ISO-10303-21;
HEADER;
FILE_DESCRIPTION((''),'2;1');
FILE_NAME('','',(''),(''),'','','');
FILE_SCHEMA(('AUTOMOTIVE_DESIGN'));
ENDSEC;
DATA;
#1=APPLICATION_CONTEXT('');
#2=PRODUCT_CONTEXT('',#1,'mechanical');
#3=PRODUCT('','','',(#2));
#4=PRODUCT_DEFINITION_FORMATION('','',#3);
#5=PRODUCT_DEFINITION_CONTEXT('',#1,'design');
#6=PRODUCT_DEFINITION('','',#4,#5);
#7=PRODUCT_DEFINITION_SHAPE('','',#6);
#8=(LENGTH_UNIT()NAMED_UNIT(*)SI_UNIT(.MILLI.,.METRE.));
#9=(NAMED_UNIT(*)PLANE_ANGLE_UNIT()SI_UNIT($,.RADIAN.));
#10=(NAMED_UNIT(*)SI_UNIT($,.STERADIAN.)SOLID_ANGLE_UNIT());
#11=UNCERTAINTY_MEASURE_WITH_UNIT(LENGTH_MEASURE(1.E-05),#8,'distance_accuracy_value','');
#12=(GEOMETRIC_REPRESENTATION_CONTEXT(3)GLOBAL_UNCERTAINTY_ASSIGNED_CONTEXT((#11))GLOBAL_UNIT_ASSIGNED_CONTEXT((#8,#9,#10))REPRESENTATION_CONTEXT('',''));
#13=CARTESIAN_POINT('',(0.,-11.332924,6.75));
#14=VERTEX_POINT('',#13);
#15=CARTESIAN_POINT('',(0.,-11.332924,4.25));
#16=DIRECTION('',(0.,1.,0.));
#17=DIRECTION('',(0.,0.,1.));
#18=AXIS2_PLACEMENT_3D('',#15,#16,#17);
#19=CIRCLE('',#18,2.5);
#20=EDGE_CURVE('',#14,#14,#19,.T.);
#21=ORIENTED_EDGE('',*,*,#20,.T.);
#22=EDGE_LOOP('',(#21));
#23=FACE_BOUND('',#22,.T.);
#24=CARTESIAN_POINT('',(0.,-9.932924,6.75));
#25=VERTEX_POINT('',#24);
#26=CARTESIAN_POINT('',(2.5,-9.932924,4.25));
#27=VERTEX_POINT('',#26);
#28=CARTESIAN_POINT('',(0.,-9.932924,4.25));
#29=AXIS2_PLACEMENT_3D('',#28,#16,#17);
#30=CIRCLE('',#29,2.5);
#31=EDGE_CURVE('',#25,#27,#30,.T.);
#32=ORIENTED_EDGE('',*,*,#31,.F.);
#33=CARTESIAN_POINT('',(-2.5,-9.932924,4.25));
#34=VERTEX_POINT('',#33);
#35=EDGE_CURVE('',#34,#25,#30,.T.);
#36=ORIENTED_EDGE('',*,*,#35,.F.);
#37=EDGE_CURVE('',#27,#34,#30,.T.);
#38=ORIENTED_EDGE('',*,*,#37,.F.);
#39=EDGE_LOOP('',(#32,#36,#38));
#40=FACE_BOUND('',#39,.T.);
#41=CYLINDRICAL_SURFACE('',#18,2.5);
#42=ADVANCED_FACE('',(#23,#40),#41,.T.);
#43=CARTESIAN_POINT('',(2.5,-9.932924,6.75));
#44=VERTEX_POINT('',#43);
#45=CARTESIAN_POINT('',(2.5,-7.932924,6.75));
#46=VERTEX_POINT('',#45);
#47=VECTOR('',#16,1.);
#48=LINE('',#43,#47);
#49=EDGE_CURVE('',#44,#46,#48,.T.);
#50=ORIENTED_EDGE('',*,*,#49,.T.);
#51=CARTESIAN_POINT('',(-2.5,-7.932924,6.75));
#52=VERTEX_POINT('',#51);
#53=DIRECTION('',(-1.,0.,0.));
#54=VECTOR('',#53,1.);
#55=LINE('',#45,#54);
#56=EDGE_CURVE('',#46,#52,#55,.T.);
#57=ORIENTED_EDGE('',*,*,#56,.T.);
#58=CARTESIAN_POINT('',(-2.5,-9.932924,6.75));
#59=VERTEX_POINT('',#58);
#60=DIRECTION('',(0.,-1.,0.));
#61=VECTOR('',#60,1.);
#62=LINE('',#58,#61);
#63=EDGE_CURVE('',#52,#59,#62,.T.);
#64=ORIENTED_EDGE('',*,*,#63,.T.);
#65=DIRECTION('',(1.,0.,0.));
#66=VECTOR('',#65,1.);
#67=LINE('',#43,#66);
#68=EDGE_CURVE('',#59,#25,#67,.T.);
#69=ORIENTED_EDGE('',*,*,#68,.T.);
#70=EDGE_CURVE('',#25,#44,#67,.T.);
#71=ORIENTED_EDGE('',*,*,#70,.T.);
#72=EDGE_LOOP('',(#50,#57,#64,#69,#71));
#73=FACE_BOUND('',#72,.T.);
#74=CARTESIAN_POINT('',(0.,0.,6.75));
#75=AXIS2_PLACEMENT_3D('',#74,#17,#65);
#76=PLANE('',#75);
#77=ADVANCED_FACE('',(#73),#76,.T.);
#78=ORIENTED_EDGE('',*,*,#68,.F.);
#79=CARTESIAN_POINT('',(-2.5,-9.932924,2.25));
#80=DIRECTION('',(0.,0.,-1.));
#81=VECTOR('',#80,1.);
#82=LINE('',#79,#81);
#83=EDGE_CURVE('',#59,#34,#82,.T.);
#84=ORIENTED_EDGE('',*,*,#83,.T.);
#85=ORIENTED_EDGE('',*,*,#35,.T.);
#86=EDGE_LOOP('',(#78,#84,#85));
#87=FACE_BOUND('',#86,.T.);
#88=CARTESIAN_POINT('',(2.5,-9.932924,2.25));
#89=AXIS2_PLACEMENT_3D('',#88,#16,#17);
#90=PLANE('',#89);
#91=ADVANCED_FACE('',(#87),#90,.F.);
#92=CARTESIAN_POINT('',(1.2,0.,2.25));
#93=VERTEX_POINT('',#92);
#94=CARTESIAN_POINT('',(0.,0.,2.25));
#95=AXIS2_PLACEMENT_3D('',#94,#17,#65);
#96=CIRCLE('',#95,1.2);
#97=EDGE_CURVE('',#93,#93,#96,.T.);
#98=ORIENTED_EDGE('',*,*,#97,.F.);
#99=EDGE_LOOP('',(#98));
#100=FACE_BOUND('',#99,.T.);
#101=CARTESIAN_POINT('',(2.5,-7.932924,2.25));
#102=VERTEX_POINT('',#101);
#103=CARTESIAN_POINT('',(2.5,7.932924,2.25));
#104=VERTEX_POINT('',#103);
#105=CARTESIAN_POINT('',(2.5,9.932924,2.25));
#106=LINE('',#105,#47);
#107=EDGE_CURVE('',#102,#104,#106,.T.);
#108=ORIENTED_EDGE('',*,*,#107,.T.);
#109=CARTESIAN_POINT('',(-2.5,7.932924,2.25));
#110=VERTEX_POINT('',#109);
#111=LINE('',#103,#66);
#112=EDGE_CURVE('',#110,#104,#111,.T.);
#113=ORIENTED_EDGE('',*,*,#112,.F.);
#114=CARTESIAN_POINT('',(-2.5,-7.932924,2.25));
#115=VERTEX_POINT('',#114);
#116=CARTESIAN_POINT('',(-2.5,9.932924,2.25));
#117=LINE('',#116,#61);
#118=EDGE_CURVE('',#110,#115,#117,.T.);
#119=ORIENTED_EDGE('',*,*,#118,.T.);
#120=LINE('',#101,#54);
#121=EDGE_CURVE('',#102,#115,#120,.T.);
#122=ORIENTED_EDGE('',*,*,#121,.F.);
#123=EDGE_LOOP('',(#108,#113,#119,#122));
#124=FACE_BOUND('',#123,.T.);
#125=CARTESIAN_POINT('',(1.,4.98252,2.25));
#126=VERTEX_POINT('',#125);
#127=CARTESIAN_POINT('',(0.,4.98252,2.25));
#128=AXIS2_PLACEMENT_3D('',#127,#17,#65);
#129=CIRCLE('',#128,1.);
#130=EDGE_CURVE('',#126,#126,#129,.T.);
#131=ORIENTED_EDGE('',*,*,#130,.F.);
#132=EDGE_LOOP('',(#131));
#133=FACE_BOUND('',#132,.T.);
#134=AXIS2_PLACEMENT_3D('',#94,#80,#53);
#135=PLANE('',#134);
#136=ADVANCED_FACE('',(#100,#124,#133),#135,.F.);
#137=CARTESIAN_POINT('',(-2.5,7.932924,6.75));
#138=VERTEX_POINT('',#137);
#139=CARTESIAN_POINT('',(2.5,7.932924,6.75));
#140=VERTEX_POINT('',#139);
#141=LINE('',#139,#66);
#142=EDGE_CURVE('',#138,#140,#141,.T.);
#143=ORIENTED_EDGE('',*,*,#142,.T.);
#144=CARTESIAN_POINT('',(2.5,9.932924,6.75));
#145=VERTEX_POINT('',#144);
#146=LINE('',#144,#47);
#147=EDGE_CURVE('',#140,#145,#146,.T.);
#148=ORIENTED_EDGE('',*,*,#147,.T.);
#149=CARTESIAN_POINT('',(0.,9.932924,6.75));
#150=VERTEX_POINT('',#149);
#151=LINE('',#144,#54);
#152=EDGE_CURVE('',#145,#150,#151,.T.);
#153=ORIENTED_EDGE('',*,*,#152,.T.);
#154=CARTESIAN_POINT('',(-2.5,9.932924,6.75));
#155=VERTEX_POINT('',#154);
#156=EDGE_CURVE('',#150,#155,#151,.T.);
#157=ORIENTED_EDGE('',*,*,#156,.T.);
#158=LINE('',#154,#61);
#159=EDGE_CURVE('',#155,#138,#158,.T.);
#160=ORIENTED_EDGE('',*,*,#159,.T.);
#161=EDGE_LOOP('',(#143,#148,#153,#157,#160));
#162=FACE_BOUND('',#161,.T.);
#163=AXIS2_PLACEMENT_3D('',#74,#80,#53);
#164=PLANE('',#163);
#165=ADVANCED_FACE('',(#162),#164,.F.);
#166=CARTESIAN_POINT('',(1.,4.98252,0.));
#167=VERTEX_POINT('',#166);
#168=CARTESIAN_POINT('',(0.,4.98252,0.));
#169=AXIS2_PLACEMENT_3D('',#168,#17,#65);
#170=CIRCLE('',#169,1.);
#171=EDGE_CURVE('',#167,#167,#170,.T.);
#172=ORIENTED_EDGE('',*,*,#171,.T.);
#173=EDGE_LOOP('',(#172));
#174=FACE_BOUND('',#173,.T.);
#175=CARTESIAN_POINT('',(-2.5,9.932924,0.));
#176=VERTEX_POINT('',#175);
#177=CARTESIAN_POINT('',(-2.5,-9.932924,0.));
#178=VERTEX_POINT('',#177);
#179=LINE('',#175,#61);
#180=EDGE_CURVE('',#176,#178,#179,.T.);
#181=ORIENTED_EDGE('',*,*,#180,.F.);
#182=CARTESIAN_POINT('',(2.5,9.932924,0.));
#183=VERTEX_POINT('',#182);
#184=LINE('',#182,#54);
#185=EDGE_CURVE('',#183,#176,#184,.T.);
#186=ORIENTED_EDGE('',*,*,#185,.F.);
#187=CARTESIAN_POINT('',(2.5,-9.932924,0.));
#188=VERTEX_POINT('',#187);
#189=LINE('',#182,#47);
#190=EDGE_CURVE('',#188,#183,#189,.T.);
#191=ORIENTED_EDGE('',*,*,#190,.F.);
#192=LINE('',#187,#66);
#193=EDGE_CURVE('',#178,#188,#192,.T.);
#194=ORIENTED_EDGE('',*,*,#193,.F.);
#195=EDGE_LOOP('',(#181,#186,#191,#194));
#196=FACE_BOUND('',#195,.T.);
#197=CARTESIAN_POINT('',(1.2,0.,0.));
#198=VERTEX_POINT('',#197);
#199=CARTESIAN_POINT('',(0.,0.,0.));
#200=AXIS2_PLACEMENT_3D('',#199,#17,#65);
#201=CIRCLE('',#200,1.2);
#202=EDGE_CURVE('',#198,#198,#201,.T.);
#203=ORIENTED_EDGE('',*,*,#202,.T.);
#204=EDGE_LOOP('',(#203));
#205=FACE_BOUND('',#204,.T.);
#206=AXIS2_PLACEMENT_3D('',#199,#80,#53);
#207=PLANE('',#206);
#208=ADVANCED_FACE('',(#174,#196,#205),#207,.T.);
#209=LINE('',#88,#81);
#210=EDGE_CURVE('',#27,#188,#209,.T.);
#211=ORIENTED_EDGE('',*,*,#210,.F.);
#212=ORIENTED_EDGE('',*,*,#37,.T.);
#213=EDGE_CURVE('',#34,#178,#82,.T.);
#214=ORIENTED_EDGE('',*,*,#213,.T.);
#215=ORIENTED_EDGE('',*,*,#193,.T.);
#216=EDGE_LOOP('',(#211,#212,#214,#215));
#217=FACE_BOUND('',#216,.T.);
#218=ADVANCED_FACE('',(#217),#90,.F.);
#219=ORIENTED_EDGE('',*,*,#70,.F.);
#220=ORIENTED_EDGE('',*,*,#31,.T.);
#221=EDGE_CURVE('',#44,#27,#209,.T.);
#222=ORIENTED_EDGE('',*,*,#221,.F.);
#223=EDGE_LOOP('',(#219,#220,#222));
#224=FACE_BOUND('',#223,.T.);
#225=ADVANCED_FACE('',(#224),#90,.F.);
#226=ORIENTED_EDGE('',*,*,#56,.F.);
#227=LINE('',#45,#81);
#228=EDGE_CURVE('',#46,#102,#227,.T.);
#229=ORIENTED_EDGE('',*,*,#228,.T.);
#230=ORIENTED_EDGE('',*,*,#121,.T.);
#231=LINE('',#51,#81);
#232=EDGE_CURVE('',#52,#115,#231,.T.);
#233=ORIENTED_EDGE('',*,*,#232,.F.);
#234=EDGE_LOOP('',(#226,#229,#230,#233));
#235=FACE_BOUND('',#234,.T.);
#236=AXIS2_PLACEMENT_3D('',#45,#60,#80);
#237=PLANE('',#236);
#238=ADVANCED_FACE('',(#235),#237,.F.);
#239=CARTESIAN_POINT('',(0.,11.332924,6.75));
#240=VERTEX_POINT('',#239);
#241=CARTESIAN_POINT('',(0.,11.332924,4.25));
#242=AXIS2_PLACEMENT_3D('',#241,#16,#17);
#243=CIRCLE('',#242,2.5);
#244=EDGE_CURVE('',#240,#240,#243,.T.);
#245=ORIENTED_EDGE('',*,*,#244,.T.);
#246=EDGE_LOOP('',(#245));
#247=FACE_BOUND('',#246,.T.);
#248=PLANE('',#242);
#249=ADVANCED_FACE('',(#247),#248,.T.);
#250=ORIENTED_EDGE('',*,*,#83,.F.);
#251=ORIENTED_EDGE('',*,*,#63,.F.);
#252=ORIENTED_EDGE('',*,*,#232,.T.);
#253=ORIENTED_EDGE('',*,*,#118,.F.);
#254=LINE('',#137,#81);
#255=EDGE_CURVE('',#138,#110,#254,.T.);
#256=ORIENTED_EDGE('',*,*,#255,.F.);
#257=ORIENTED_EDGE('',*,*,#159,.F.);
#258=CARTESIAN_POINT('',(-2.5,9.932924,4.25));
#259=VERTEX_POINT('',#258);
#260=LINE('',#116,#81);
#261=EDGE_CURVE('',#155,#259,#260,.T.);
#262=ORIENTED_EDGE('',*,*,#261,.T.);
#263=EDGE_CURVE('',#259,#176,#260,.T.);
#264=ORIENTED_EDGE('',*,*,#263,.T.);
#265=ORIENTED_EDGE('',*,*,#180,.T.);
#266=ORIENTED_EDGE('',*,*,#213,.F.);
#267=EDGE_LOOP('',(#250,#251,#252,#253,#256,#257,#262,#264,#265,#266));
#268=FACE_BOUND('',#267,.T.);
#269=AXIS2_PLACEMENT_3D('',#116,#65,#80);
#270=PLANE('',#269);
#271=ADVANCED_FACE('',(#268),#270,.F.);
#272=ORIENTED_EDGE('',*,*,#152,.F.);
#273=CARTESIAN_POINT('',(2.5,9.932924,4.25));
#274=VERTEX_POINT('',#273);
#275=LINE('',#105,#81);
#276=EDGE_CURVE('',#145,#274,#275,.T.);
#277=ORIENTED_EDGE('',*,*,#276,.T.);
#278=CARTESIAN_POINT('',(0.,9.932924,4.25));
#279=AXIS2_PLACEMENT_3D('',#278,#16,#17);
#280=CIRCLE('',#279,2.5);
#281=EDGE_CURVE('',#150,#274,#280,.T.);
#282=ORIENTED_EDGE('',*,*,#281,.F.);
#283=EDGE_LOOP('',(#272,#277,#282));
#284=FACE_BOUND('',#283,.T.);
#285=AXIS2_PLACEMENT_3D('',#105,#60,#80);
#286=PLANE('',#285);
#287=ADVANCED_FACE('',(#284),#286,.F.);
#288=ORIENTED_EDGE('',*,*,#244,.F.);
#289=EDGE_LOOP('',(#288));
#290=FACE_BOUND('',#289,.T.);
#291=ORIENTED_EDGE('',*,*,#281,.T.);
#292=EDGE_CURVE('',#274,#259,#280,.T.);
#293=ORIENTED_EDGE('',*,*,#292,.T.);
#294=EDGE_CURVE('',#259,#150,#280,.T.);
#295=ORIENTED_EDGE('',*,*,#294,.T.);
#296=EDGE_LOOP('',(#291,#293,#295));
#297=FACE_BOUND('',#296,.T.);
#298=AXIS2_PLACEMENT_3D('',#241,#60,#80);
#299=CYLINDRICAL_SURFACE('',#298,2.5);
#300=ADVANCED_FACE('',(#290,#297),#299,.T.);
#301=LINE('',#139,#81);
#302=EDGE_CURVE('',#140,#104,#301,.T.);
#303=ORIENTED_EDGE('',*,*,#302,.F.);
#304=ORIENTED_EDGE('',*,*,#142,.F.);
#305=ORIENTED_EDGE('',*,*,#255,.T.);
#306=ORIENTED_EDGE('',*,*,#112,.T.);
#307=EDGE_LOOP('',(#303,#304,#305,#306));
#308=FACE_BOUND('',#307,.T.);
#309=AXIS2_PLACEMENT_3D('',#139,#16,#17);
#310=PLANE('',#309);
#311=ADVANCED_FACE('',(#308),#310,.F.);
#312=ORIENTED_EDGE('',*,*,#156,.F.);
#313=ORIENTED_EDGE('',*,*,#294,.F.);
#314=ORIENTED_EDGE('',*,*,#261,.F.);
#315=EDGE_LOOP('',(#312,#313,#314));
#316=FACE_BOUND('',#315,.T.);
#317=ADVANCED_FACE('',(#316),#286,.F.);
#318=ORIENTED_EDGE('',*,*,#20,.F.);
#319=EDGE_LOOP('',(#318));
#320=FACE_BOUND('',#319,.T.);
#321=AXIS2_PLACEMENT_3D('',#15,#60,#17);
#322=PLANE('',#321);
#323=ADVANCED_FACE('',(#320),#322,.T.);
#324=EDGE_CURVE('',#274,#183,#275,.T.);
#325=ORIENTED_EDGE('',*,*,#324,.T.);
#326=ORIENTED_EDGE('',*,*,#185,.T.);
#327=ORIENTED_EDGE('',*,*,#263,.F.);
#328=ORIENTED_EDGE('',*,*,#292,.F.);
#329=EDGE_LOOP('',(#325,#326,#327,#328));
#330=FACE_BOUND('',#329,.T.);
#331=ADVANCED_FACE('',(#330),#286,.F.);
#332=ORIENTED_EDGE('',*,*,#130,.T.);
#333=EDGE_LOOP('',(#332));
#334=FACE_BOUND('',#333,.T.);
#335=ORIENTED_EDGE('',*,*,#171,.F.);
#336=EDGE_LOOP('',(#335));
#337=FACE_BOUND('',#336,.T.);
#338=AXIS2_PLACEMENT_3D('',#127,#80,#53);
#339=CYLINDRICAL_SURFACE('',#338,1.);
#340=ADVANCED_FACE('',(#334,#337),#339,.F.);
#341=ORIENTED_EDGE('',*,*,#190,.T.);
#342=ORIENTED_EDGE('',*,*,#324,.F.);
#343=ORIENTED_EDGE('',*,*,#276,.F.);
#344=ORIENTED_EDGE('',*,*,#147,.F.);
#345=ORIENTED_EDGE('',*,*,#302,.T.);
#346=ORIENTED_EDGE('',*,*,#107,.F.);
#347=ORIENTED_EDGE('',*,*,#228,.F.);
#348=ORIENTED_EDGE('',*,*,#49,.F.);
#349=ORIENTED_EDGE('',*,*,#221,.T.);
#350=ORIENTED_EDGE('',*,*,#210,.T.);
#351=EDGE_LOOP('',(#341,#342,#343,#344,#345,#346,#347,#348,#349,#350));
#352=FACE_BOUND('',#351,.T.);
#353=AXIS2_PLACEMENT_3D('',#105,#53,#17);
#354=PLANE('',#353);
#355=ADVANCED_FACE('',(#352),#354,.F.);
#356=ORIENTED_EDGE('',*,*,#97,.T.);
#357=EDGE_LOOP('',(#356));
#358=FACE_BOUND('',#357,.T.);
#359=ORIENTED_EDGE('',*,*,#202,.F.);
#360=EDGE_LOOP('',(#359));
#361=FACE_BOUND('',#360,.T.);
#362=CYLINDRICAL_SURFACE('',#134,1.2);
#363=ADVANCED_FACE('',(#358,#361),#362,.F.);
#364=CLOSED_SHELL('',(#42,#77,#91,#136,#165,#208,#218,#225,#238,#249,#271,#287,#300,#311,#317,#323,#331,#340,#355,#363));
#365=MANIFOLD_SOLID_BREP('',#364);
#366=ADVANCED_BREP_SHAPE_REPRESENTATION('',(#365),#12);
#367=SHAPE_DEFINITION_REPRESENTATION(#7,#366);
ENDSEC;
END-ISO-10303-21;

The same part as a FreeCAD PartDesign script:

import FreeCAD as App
import Part
import Sketcher

V = App.Vector

doc = App.newDocument("Part")
params = doc.addObject("Spreadsheet::Sheet", "Params")
for row, (alias, value) in enumerate([
    ("sketch1_diameter", "2 mm"),
    ("sketch1_diameter2", "2.4 mm"),
    ("sketch1_width", "5 mm"),
    ("pad1_length", "2.25 mm"),
    ("sketch2_width", "5 mm"),
    ("sketch2_height", "2 mm"),
    ("pad2_length", "4.5 mm"),
    ("sketch3_diameter", "5 mm"),
    ("pad3_length", "1.4 mm"),
], start=1):
    params.set(f"A{row}", alias)
    params.set(f"B{row}", "=" + value)
    params.setAlias(f"B{row}", alias)

body = doc.addObject("PartDesign::Body", "Body")

sketch1 = body.newObject("Sketcher::SketchObject", "Sketch")
sketch1.AttachmentSupport = (doc.getObject("XY_Plane"), [""])
sketch1.MapMode = "FlatFace"
sketch1.addGeometry([
    Part.LineSegment(V(-2.5, 9.9, 0), V(-2.5, -9.9, 0)),
    Part.LineSegment(V(-2.5, -9.9, 0), V(2.5, -9.9, 0)),
    Part.LineSegment(V(2.5, -9.9, 0), V(2.5, 9.9, 0)),
    Part.LineSegment(V(2.5, 9.9, 0), V(-2.5, 9.9, 0)),
    Part.Circle(V(0, 0, 0), V(0, 0, 1), 1.2),
    Part.Circle(V(0, 5, 0), V(0, 0, 1), 1),
], False)
sketch1.addConstraint([
    Sketcher.Constraint("Coincident", 0, 2, 1, 1),
    Sketcher.Constraint("Coincident", 1, 2, 2, 1),
    Sketcher.Constraint("Coincident", 2, 2, 3, 1),
    Sketcher.Constraint("Coincident", 3, 2, 0, 1),
    Sketcher.Constraint("Vertical", 0),
    Sketcher.Constraint("Horizontal", 1),
    Sketcher.Constraint("Vertical", 2),
    Sketcher.Constraint("Horizontal", 3),
    Sketcher.Constraint("Coincident", 4, 3, -1, 1),
    Sketcher.Constraint("Symmetric", 0, 2, 2, 2, -1, 1),
    Sketcher.Constraint("PointOnObject", 5, 3, -2),
    Sketcher.Constraint("Diameter", 5, 2.0),
    Sketcher.Constraint("Diameter", 4, 2.4),
    Sketcher.Constraint("DistanceX", 1, 1, 1, 2, 5.0),
    Sketcher.Constraint("DistanceY", 0, 2, 0, 1, 19.865849),
    Sketcher.Constraint("DistanceY", -1, 1, 5, 3, 4.98252),
])
sketch1.setExpression("Constraints[11]", "Params.sketch1_diameter")
sketch1.setExpression("Constraints[12]", "Params.sketch1_diameter2")
sketch1.setExpression("Constraints[13]", "Params.sketch1_width")
pad1 = body.newObject("PartDesign::Pad", "Pad")
pad1.Profile = sketch1
pad1.setExpression("Length", "Params.pad1_length")

sketch2 = body.newObject("Sketcher::SketchObject", "Sketch001")
sketch2.AttachmentSupport = (doc.getObject("XY_Plane"), [""])
sketch2.MapMode = "FlatFace"
sketch2.AttachmentOffset = App.Placement(V(0, 0, 2.25), App.Rotation())
sketch2.addGeometry([
    Part.LineSegment(V(-2.5, 9.9, 0), V(-2.5, 7.9, 0)),
    Part.LineSegment(V(-2.5, 7.9, 0), V(2.5, 7.9, 0)),
    Part.LineSegment(V(2.5, 7.9, 0), V(2.5, 9.9, 0)),
    Part.LineSegment(V(2.5, 9.9, 0), V(-2.5, 9.9, 0)),
    Part.LineSegment(V(-2.5, -7.9, 0), V(-2.5, -9.9, 0)),
    Part.LineSegment(V(-2.5, -9.9, 0), V(2.5, -9.9, 0)),
    Part.LineSegment(V(2.5, -9.9, 0), V(2.5, -7.9, 0)),
    Part.LineSegment(V(2.5, -7.9, 0), V(-2.5, -7.9, 0)),
], False)
sketch2.addConstraint([
    Sketcher.Constraint("Coincident", 0, 2, 1, 1),
    Sketcher.Constraint("Coincident", 1, 2, 2, 1),
    Sketcher.Constraint("Coincident", 2, 2, 3, 1),
    Sketcher.Constraint("Coincident", 3, 2, 0, 1),
    Sketcher.Constraint("Coincident", 4, 2, 5, 1),
    Sketcher.Constraint("Coincident", 5, 2, 6, 1),
    Sketcher.Constraint("Coincident", 6, 2, 7, 1),
    Sketcher.Constraint("Coincident", 7, 2, 4, 1),
    Sketcher.Constraint("Vertical", 0),
    Sketcher.Constraint("Horizontal", 1),
    Sketcher.Constraint("Vertical", 2),
    Sketcher.Constraint("Horizontal", 3),
    Sketcher.Constraint("Vertical", 4),
    Sketcher.Constraint("Horizontal", 5),
    Sketcher.Constraint("Vertical", 6),
    Sketcher.Constraint("Horizontal", 7),
    Sketcher.Constraint("Symmetric", 2, 2, 4, 2, -1, 1),
    Sketcher.Constraint("Symmetric", 0, 2, 6, 2, -1, 1),
    Sketcher.Constraint("Vertical", 3, 2, 4, 2),
    Sketcher.Constraint("DistanceX", 1, 1, 1, 2, 5.0),
    Sketcher.Constraint("DistanceY", 0, 2, 0, 1, 2.0),
    Sketcher.Constraint("DistanceY", 4, 2, 0, 2, 17.865849),
])
sketch2.setExpression("Constraints[19]", "Params.sketch2_width")
sketch2.setExpression("Constraints[20]", "Params.sketch2_height")
pad2 = body.newObject("PartDesign::Pad", "Pad001")
pad2.Profile = sketch2
pad2.setExpression("Length", "Params.pad2_length")

sketch3 = body.newObject("Sketcher::SketchObject", "Sketch002")
sketch3.AttachmentSupport = (doc.getObject("XZ_Plane"), [""])
sketch3.MapMode = "FlatFace"
sketch3.AttachmentOffset = App.Placement(V(0, 0, -9.932924), App.Rotation())
sketch3.addGeometry(Part.Circle(V(0, 4.2, 0), V(0, 0, 1), 2.5), False)
sketch3.addConstraint([
    Sketcher.Constraint("PointOnObject", 0, 3, -2),
    Sketcher.Constraint("Diameter", 0, 5.0),
    Sketcher.Constraint("DistanceY", -1, 1, 0, 3, 4.25),
])
sketch3.setExpression("Constraints[1]", "Params.sketch3_diameter")
pad3 = body.newObject("PartDesign::Pad", "Pad002")
pad3.Profile = sketch3
pad3.setExpression("Length", "Params.pad3_length")
pad3.Reversed = True
doc.recompute()

mirrored = body.newObject("PartDesign::Mirrored", "Mirrored")
mirrored.Originals = [pad3]
mirrored.MirrorPlane = (doc.getObject("XZ_Plane"), [""])
body.Tip = mirrored

doc.recompute()
